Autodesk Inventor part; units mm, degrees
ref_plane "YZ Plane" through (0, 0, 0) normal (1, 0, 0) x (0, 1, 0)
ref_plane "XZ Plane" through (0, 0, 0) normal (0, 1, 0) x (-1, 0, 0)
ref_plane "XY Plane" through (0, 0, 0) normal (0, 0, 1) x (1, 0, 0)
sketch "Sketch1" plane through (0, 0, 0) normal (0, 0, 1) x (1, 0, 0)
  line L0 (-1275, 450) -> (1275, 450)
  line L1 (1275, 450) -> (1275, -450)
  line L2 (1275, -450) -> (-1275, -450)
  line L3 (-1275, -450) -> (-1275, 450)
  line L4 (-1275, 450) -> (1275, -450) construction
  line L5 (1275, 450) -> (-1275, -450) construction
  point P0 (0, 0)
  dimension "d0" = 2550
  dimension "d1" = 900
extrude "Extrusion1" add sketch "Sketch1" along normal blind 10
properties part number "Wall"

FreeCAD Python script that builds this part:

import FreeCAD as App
import Part
import Sketcher
from FreeCAD import Vector

doc = App.newDocument("Part")
body = doc.addObject("PartDesign::Body", "Body")

sketch1 = body.newObject("Sketcher::SketchObject", "Sketch")
sketch1.AttachmentSupport = (doc.getObject("XY_Plane"), [""])
sketch1.MapMode = "FlatFace"
sketch1.addGeometry(Part.LineSegment(Vector(1275, 450, 0), Vector(-1275, 450, 0)), False)
sketch1.addGeometry(Part.LineSegment(Vector(-1275, 450, 0), Vector(-1275, -450, 0)), False)
sketch1.addGeometry(Part.LineSegment(Vector(-1275, -450, 0), Vector(1275, -450, 0)), False)
sketch1.addGeometry(Part.LineSegment(Vector(1275, -450, 0), Vector(1275, 450, 0)), False)
sketch1.addConstraint(Sketcher.Constraint("Coincident", 0, 2, 1, 1))
sketch1.addConstraint(Sketcher.Constraint("Coincident", 1, 2, 2, 1))
sketch1.addConstraint(Sketcher.Constraint("Coincident", 2, 2, 3, 1))
sketch1.addConstraint(Sketcher.Constraint("Coincident", 3, 2, 0, 1))
sketch1.addConstraint(Sketcher.Constraint("Horizontal", 0))
sketch1.addConstraint(Sketcher.Constraint("Vertical", 1))
sketch1.addConstraint(Sketcher.Constraint("Horizontal", 2))
sketch1.addConstraint(Sketcher.Constraint("Vertical", 3))
sketch1.addConstraint(Sketcher.Constraint("Symmetric", 0, 2, 2, 2, -1, 1))
sketch1.addConstraint(Sketcher.Constraint("DistanceX", 0, 2, 0, 1, 2550.0))
sketch1.addConstraint(Sketcher.Constraint("DistanceY", 1, 2, 1, 1, 900.0))
pad1 = body.newObject("PartDesign::Pad", "Pad")
pad1.Profile = sketch1
pad1.Length = 10

doc.recompute()
